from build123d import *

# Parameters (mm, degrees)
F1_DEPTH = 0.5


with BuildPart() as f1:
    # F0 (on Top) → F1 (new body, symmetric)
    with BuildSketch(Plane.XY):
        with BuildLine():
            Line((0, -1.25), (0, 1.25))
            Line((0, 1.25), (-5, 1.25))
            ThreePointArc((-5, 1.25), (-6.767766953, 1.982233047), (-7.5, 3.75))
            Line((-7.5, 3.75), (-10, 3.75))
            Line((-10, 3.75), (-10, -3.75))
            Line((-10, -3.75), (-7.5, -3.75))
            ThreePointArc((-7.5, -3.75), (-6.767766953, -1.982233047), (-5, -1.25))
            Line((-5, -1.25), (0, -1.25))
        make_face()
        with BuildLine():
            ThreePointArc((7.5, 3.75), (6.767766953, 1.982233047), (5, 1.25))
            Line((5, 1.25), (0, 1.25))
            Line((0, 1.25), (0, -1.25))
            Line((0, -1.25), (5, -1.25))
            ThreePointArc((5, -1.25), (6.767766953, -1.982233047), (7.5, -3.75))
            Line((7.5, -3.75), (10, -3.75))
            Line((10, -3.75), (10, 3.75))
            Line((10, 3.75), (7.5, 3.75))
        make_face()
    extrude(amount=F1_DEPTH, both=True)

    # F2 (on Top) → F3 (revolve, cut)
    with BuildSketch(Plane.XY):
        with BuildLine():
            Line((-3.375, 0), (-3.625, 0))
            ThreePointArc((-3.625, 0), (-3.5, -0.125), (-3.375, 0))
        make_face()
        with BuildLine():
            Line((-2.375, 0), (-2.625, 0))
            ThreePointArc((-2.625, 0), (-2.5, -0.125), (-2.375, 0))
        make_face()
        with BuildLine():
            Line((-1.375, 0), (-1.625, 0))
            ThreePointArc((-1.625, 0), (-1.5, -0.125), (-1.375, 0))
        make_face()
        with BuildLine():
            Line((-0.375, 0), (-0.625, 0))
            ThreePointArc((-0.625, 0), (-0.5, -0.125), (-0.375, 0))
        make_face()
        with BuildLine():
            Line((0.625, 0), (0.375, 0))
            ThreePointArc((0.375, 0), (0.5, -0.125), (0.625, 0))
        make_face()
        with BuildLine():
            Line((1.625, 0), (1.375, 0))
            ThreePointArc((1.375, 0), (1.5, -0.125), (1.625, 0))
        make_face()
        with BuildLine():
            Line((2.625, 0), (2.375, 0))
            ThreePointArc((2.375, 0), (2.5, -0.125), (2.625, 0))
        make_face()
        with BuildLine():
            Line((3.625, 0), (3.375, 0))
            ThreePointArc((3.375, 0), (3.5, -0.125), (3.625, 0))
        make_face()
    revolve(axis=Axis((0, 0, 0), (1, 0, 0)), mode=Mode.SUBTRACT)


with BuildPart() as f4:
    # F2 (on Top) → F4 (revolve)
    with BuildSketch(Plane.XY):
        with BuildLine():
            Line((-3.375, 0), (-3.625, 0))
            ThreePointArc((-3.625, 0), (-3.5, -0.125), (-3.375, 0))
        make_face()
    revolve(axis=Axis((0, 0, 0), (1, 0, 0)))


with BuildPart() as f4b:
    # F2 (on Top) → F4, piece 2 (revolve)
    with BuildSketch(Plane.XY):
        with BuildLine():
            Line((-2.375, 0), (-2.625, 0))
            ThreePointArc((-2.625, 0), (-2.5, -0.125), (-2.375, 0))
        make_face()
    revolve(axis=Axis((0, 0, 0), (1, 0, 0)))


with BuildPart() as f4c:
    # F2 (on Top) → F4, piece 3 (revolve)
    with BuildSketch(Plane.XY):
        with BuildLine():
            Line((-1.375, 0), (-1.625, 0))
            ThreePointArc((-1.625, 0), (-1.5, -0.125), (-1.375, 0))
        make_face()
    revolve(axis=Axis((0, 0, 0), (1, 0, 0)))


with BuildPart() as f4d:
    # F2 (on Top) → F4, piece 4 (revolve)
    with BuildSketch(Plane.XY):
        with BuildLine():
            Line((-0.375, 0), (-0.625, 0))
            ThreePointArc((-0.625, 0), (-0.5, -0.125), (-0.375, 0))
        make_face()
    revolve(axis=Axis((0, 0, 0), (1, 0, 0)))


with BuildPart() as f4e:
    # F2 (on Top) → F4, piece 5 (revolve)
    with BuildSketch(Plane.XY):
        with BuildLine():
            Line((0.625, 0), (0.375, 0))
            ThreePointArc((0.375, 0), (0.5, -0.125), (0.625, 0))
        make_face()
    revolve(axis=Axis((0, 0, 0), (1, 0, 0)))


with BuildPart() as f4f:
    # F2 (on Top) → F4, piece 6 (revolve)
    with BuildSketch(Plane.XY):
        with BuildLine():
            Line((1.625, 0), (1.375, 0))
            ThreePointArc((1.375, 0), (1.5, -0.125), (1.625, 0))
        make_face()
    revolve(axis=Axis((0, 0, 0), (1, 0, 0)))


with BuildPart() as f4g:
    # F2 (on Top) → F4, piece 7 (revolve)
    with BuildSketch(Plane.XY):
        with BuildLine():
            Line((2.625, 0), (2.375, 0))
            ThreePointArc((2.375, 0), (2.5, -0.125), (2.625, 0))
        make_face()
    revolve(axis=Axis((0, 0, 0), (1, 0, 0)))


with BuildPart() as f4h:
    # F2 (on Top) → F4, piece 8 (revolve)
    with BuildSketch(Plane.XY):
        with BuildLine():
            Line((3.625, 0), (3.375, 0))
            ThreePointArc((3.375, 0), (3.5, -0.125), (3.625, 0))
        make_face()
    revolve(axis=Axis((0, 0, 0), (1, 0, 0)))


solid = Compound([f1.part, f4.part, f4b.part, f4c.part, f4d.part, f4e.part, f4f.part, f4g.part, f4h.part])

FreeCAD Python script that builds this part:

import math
import FreeCAD as App
import Part
import Sketcher

doc = App.newDocument("Part")
params = doc.addObject("Spreadsheet::Sheet", "Params")
for row, (alias, value) in enumerate([
    ("sketch1_radius", "2.5 mm"),
    ("sketch1_width", "10 mm"),
    ("sketch1_width2", "2.5 mm"),
    ("sketch1_height", "7.5 mm"),
    ("pad1_length", "1 mm"),
    ("groove_angle", "360 deg"),
    ("revolution_angle", "360 deg"),
    ("revolution2_angle", "360 deg"),
    ("revolution3_angle", "360 deg"),
    ("revolution4_angle", "360 deg"),
    ("revolution5_angle", "360 deg"),
    ("revolution6_angle", "360 deg"),
    ("revolution7_angle", "360 deg"),
    ("revolution8_angle", "360 deg"),
], start=1):
    params.set(f"A{row}", alias)
    params.set(f"B{row}", "=" + value)
    params.setAlias(f"B{row}", alias)

body = doc.addObject("PartDesign::Body", "Body")

sketch1 = body.newObject("Sketcher::SketchObject", "Sketch")
sketch1.AttachmentSupport = (doc.getObject("XY_Plane"), [""])
sketch1.MapMode = "FlatFace"
sketch1.addGeometry([
    Part.ArcOfCircle(Part.Circle(App.Vector(-5, 3.75, 0), App.Vector(0, 0, 1), 2.5), math.radians(180), math.radians(270)),
    Part.LineSegment(App.Vector(-7.5, 3.75, 0), App.Vector(-10, 3.75, 0)),
    Part.LineSegment(App.Vector(-10, 3.75, 0), App.Vector(-10, -3.75, 0)),
    Part.LineSegment(App.Vector(-10, -3.75, 0), App.Vector(-7.5, -3.75, 0)),
    Part.ArcOfCircle(Part.Circle(App.Vector(-5, -3.75, 0), App.Vector(0, 0, 1), 2.5), math.radians(90), math.radians(180)),
    Part.LineSegment(App.Vector(-5, -1.25, 0), App.Vector(5, -1.25, 0)),
    Part.ArcOfCircle(Part.Circle(App.Vector(5, -3.75, 0), App.Vector(0, 0, 1), 2.5), math.radians(0), math.radians(90)),
    Part.LineSegment(App.Vector(7.5, -3.75, 0), App.Vector(10, -3.75, 0)),
    Part.LineSegment(App.Vector(10, -3.75, 0), App.Vector(10, 3.75, 0)),
    Part.LineSegment(App.Vector(10, 3.75, 0), App.Vector(7.5, 3.75, 0)),
    Part.ArcOfCircle(Part.Circle(App.Vector(5, 3.75, 0), App.Vector(0, 0, 1), 2.5), math.radians(-90), math.radians(0)),
    Part.LineSegment(App.Vector(5, 1.25, 0), App.Vector(-5, 1.25, 0)),
], False)
sketch1.addConstraint([
    Sketcher.Constraint("Coincident", 0, 1, 1, 1),
    Sketcher.Constraint("Coincident", 1, 2, 2, 1),
    Sketcher.Constraint("Coincident", 2, 2, 3, 1),
    Sketcher.Constraint("Coincident", 3, 2, 4, 2),
    Sketcher.Constraint("Tangent", 4, 1, 5, 1),
    Sketcher.Constraint("Tangent", 5, 2, 6, 2),
    Sketcher.Constraint("Coincident", 6, 1, 7, 1),
    Sketcher.Constraint("Coincident", 7, 2, 8, 1),
    Sketcher.Constraint("Coincident", 8, 2, 9, 1),
    Sketcher.Constraint("Coincident", 9, 2, 10, 2),
    Sketcher.Constraint("Tangent", 10, 1, 11, 1),
    Sketcher.Constraint("Tangent", 11, 2, 0, 2),
    Sketcher.Constraint("Horizontal", 1),
    Sketcher.Constraint("Vertical", 2),
    Sketcher.Constraint("Horizontal", 3),
    Sketcher.Constraint("Horizontal", 5),
    Sketcher.Constraint("Horizontal", 7),
    Sketcher.Constraint("Vertical", 8),
    Sketcher.Constraint("Horizontal", 9),
    Sketcher.Constraint("Horizontal", 11),
    Sketcher.Constraint("Equal", 0, 4),
    Sketcher.Constraint("Equal", 4, 6),
    Sketcher.Constraint("Equal", 6, 10),
    Sketcher.Constraint("Symmetric", 0, 3, 6, 3, -1, 1),
    Sketcher.Constraint("Symmetric", 1, 2, 7, 2, -1, 1),
    Sketcher.Constraint("Symmetric", 3, 2, 9, 2, -1, 1),
    Sketcher.Constraint("Symmetric", 3, 2, 6, 1, -2),
    Sketcher.Constraint("Horizontal", 10, 3, 0, 1),
    Sketcher.Constraint("Radius", 0, 2.5),
    Sketcher.Constraint("DistanceX", 5, 1, 5, 2, 10.0),
    Sketcher.Constraint("DistanceX", 1, 2, 1, 1, 2.5),
    Sketcher.Constraint("DistanceY", 2, 2, 2, 1, 7.5),
])
sketch1.setExpression("Constraints[28]", "Params.sketch1_radius")
sketch1.setExpression("Constraints[29]", "Params.sketch1_width")
sketch1.setExpression("Constraints[30]", "Params.sketch1_width2")
sketch1.setExpression("Constraints[31]", "Params.sketch1_height")
pad1 = body.newObject("PartDesign::Pad", "Pad")
pad1.Profile = sketch1
pad1.setExpression("Length", "Params.pad1_length")
pad1.Midplane = True

sketch2 = body.newObject("Sketcher::SketchObject", "Sketch001")
sketch2.AttachmentSupport = (doc.getObject("XY_Plane"), [""])
sketch2.MapMode = "FlatFace"
sketch2.addGeometry([
    Part.LineSegment(App.Vector(-3.375, 0, 0), App.Vector(-3.625, 0, 0)),
    Part.ArcOfCircle(Part.Circle(App.Vector(-3.5, 0, 0), App.Vector(0, 0, 1), 0.125), math.radians(180), math.radians(360)),
    Part.LineSegment(App.Vector(-2.375, 0, 0), App.Vector(-2.625, 0, 0)),
    Part.ArcOfCircle(Part.Circle(App.Vector(-2.5, 0, 0), App.Vector(0, 0, 1), 0.125), math.radians(180), math.radians(360)),
    Part.LineSegment(App.Vector(-1.375, 0, 0), App.Vector(-1.625, 0, 0)),
    Part.ArcOfCircle(Part.Circle(App.Vector(-1.5, 0, 0), App.Vector(0, 0, 1), 0.125), math.radians(180), math.radians(360)),
    Part.LineSegment(App.Vector(-0.375, 0, 0), App.Vector(-0.625, 0, 0)),
    Part.ArcOfCircle(Part.Circle(App.Vector(-0.5, 0, 0), App.Vector(0, 0, 1), 0.125), math.radians(180), math.radians(360)),
    Part.LineSegment(App.Vector(0.625, 0, 0), App.Vector(0.375, 0, 0)),
    Part.ArcOfCircle(Part.Circle(App.Vector(0.5, 0, 0), App.Vector(0, 0, 1), 0.125), math.radians(180), math.radians(360)),
    Part.LineSegment(App.Vector(1.625, 0, 0), App.Vector(1.375, 0, 0)),
    Part.ArcOfCircle(Part.Circle(App.Vector(1.5, 0, 0), App.Vector(0, 0, 1), 0.125), math.radians(180), math.radians(360)),
    Part.LineSegment(App.Vector(2.625, 0, 0), App.Vector(2.375, 0, 0)),
    Part.ArcOfCircle(Part.Circle(App.Vector(2.5, 0, 0), App.Vector(0, 0, 1), 0.125), math.radians(180), math.radians(360)),
    Part.LineSegment(App.Vector(3.625, 0, 0), App.Vector(3.375, 0, 0)),
    Part.ArcOfCircle(Part.Circle(App.Vector(3.5, 0, 0), App.Vector(0, 0, 1), 0.125), math.radians(180), math.radians(360)),
], False)
sketch2.addConstraint([
    Sketcher.Constraint("Coincident", 0, 1, 1, 2),
    Sketcher.Constraint("Coincident", 1, 1, 0, 2),
    Sketcher.Constraint("Coincident", 2, 1, 3, 2),
    Sketcher.Constraint("Coincident", 3, 1, 2, 2),
    Sketcher.Constraint("Coincident", 4, 1, 5, 2),
    Sketcher.Constraint("Coincident", 5, 1, 4, 2),
    Sketcher.Constraint("Coincident", 6, 1, 7, 2),
    Sketcher.Constraint("Coincident", 7, 1, 6, 2),
    Sketcher.Constraint("Coincident", 8, 1, 9, 2),
    Sketcher.Constraint("Coincident", 9, 1, 8, 2),
    Sketcher.Constraint("Coincident", 10, 1, 11, 2),
    Sketcher.Constraint("Coincident", 11, 1, 10, 2),
    Sketcher.Constraint("Coincident", 12, 1, 13, 2),
    Sketcher.Constraint("Coincident", 13, 1, 12, 2),
    Sketcher.Constraint("Coincident", 14, 1, 15, 2),
    Sketcher.Constraint("Coincident", 15, 1, 14, 2),
    Sketcher.Constraint("Horizontal", 0),
    Sketcher.Constraint("Horizontal", 2),
    Sketcher.Constraint("Horizontal", 4),
    Sketcher.Constraint("Horizontal", 6),
    Sketcher.Constraint("Horizontal", 8),
    Sketcher.Constraint("Horizontal", 10),
    Sketcher.Constraint("Horizontal", 12),
    Sketcher.Constraint("Horizontal", 14),
    Sketcher.Constraint("Equal", 1, 3),
    Sketcher.Constraint("Equal", 3, 5),
    Sketcher.Constraint("Equal", 5, 7),
    Sketcher.Constraint("Equal", 7, 9),
    Sketcher.Constraint("Equal", 9, 11),
    Sketcher.Constraint("Equal", 11, 13),
    Sketcher.Constraint("Equal", 13, 15),
    Sketcher.Constraint("Symmetric", 7, 3, 9, 3, -1, 1),
    Sketcher.Constraint("Symmetric", 5, 3, 11, 3, -1, 1),
    Sketcher.Constraint("Symmetric", 3, 3, 13, 3, -1, 1),
    Sketcher.Constraint("Symmetric", 1, 3, 15, 3, -1, 1),
    Sketcher.Constraint("PointOnObject", 1, 3, -1),
    Sketcher.Constraint("PointOnObject", 3, 3, -1),
    Sketcher.Constraint("PointOnObject", 5, 3, -1),
    Sketcher.Constraint("PointOnObject", 7, 3, -1),
    Sketcher.Constraint("PointOnObject", 0, 1, -1),
    Sketcher.Constraint("PointOnObject", 2, 1, -1),
    Sketcher.Constraint("PointOnObject", 4, 1, -1),
    Sketcher.Constraint("PointOnObject", 6, 1, -1),
    Sketcher.Constraint("PointOnObject", 8, 1, -1),
    Sketcher.Constraint("PointOnObject", 10, 1, -1),
    Sketcher.Constraint("PointOnObject", 12, 1, -1),
    Sketcher.Constraint("PointOnObject", 14, 1, -1),
    Sketcher.Constraint("Radius", 1, 0.125),
    Sketcher.Constraint("DistanceX", 1, 3, 3, 3, 1.0),
    Sketcher.Constraint("DistanceX", 3, 3, 5, 3, 1.0),
    Sketcher.Constraint("DistanceX", 5, 3, 7, 3, 1.0),
    Sketcher.Constraint("DistanceX", 7, 3, 9, 3, 1.0),
])
groove = body.newObject("PartDesign::Groove", "Groove")
groove.Profile = sketch2
groove.ReferenceAxis = (sketch2, ["H_Axis"])
groove.setExpression("Angle", "Params.groove_angle")
body2 = doc.addObject("PartDesign::Body", "Body001")

sketch3 = body2.newObject("Sketcher::SketchObject", "Sketch002")
sketch3.AttachmentSupport = (doc.getObject("XY_Plane001"), [""])
sketch3.MapMode = "FlatFace"
sketch3.addGeometry([
    Part.LineSegment(App.Vector(-3.375, 0, 0), App.Vector(-3.625, 0, 0)),
    Part.ArcOfCircle(Part.Circle(App.Vector(-3.5, 0, 0), App.Vector(0, 0, 1), 0.125), math.radians(180), math.radians(360)),
], False)
sketch3.addConstraint([
    Sketcher.Constraint("Coincident", 0, 1, 1, 2),
    Sketcher.Constraint("Coincident", 1, 1, 0, 2),
    Sketcher.Constraint("Horizontal", 0),
    Sketcher.Constraint("PointOnObject", 1, 3, -1),
    Sketcher.Constraint("PointOnObject", 0, 1, -1),
    Sketcher.Constraint("Radius", 1, 0.125),
    Sketcher.Constraint("DistanceX", 1, 3, -1, 1, 3.5),
])
revolution = body2.newObject("PartDesign::Revolution", "Revolution")
revolution.Profile = sketch3
revolution.ReferenceAxis = (sketch3, ["H_Axis"])
revolution.setExpression("Angle", "Params.revolution_angle")
body3 = doc.addObject("PartDesign::Body", "Body002")

sketch4 = body3.newObject("Sketcher::SketchObject", "Sketch003")
sketch4.AttachmentSupport = (doc.getObject("XY_Plane002"), [""])
sketch4.MapMode = "FlatFace"
sketch4.addGeometry([
    Part.LineSegment(App.Vector(-2.375, 0, 0), App.Vector(-2.625, 0, 0)),
    Part.ArcOfCircle(Part.Circle(App.Vector(-2.5, 0, 0), App.Vector(0, 0, 1), 0.125), math.radians(180), math.radians(360)),
], False)
sketch4.addConstraint([
    Sketcher.Constraint("Coincident", 0, 1, 1, 2),
    Sketcher.Constraint("Coincident", 1, 1, 0, 2),
    Sketcher.Constraint("Horizontal", 0),
    Sketcher.Constraint("PointOnObject", 1, 3, -1),
    Sketcher.Constraint("PointOnObject", 0, 1, -1),
    Sketcher.Constraint("Radius", 1, 0.125),
    Sketcher.Constraint("DistanceX", 1, 3, -1, 1, 2.5),
])
revolution2 = body3.newObject("PartDesign::Revolution", "Revolution001")
revolution2.Profile = sketch4
revolution2.ReferenceAxis = (sketch4, ["H_Axis"])
revolution2.setExpression("Angle", "Params.revolution2_angle")
body4 = doc.addObject("PartDesign::Body", "Body003")

sketch5 = body4.newObject("Sketcher::SketchObject", "Sketch004")
sketch5.AttachmentSupport = (doc.getObject("XY_Plane003"), [""])
sketch5.MapMode = "FlatFace"
sketch5.addGeometry([
    Part.LineSegment(App.Vector(-1.375, 0, 0), App.Vector(-1.625, 0, 0)),
    Part.ArcOfCircle(Part.Circle(App.Vector(-1.5, 0, 0), App.Vector(0, 0, 1), 0.125), math.radians(180), math.radians(360)),
], False)
sketch5.addConstraint([
    Sketcher.Constraint("Coincident", 0, 1, 1, 2),
    Sketcher.Constraint("Coincident", 1, 1, 0, 2),
    Sketcher.Constraint("Horizontal", 0),
    Sketcher.Constraint("PointOnObject", 1, 3, -1),
    Sketcher.Constraint("PointOnObject", 0, 1, -1),
    Sketcher.Constraint("Radius", 1, 0.125),
    Sketcher.Constraint("DistanceX", 1, 3, -1, 1, 1.5),
])
revolution3 = body4.newObject("PartDesign::Revolution", "Revolution002")
revolution3.Profile = sketch5
revolution3.ReferenceAxis = (sketch5, ["H_Axis"])
revolution3.setExpression("Angle", "Params.revolution3_angle")
body5 = doc.addObject("PartDesign::Body", "Body004")

sketch6 = body5.newObject("Sketcher::SketchObject", "Sketch005")
sketch6.AttachmentSupport = (doc.getObject("XY_Plane004"), [""])
sketch6.MapMode = "FlatFace"
sketch6.addGeometry([
    Part.LineSegment(App.Vector(-0.375, 0, 0), App.Vector(-0.625, 0, 0)),
    Part.ArcOfCircle(Part.Circle(App.Vector(-0.5, 0, 0), App.Vector(0, 0, 1), 0.125), math.radians(180), math.radians(360)),
], False)
sketch6.addConstraint([
    Sketcher.Constraint("Coincident", 0, 1, 1, 2),
    Sketcher.Constraint("Coincident", 1, 1, 0, 2),
    Sketcher.Constraint("Horizontal", 0),
    Sketcher.Constraint("PointOnObject", 1, 3, -1),
    Sketcher.Constraint("PointOnObject", 0, 1, -1),
    Sketcher.Constraint("Radius", 1, 0.125),
    Sketcher.Constraint("DistanceX", 1, 3, -1, 1, 0.5),
])
revolution4 = body5.newObject("PartDesign::Revolution", "Revolution003")
revolution4.Profile = sketch6
revolution4.ReferenceAxis = (sketch6, ["H_Axis"])
revolution4.setExpression("Angle", "Params.revolution4_angle")
body6 = doc.addObject("PartDesign::Body", "Body005")

sketch7 = body6.newObject("Sketcher::SketchObject", "Sketch006")
sketch7.AttachmentSupport = (doc.getObject("XY_Plane005"), [""])
sketch7.MapMode = "FlatFace"
sketch7.addGeometry([
    Part.LineSegment(App.Vector(0.625, 0, 0), App.Vector(0.375, 0, 0)),
    Part.ArcOfCircle(Part.Circle(App.Vector(0.5, 0, 0), App.Vector(0, 0, 1), 0.125), math.radians(180), math.radians(360)),
], False)
sketch7.addConstraint([
    Sketcher.Constraint("Coincident", 0, 1, 1, 2),
    Sketcher.Constraint("Coincident", 1, 1, 0, 2),
    Sketcher.Constraint("Horizontal", 0),
    Sketcher.Constraint("PointOnObject", 1, 3, -1),
    Sketcher.Constraint("PointOnObject", 0, 1, -1),
    Sketcher.Constraint("Radius", 1, 0.125),
    Sketcher.Constraint("DistanceX", -1, 1, 1, 3, 0.5),
])
revolution5 = body6.newObject("PartDesign::Revolution", "Revolution004")
revolution5.Profile = sketch7
revolution5.ReferenceAxis = (sketch7, ["H_Axis"])
revolution5.setExpression("Angle", "Params.revolution5_angle")
body7 = doc.addObject("PartDesign::Body", "Body006")

sketch8 = body7.newObject("Sketcher::SketchObject", "Sketch007")
sketch8.AttachmentSupport = (doc.getObject("XY_Plane006"), [""])
sketch8.MapMode = "FlatFace"
sketch8.addGeometry([
    Part.LineSegment(App.Vector(1.625, 0, 0), App.Vector(1.375, 0, 0)),
    Part.ArcOfCircle(Part.Circle(App.Vector(1.5, 0, 0), App.Vector(0, 0, 1), 0.125), math.radians(180), math.radians(360)),
], False)
sketch8.addConstraint([
    Sketcher.Constraint("Coincident", 0, 1, 1, 2),
    Sketcher.Constraint("Coincident", 1, 1, 0, 2),
    Sketcher.Constraint("Horizontal", 0),
    Sketcher.Constraint("PointOnObject", 1, 3, -1),
    Sketcher.Constraint("PointOnObject", 0, 1, -1),
    Sketcher.Constraint("Radius", 1, 0.125),
    Sketcher.Constraint("DistanceX", -1, 1, 1, 3, 1.5),
])
revolution6 = body7.newObject("PartDesign::Revolution", "Revolution005")
revolution6.Profile = sketch8
revolution6.ReferenceAxis = (sketch8, ["H_Axis"])
revolution6.setExpression("Angle", "Params.revolution6_angle")
body8 = doc.addObject("PartDesign::Body", "Body007")

sketch9 = body8.newObject("Sketcher::SketchObject", "Sketch008")
sketch9.AttachmentSupport = (doc.getObject("XY_Plane007"), [""])
sketch9.MapMode = "FlatFace"
sketch9.addGeometry([
    Part.LineSegment(App.Vector(2.625, 0, 0), App.Vector(2.375, 0, 0)),
    Part.ArcOfCircle(Part.Circle(App.Vector(2.5, 0, 0), App.Vector(0, 0, 1), 0.125), math.radians(180), math.radians(360)),
], False)
sketch9.addConstraint([
    Sketcher.Constraint("Coincident", 0, 1, 1, 2),
    Sketcher.Constraint("Coincident", 1, 1, 0, 2),
    Sketcher.Constraint("Horizontal", 0),
    Sketcher.Constraint("PointOnObject", 1, 3, -1),
    Sketcher.Constraint("PointOnObject", 0, 1, -1),
    Sketcher.Constraint("Radius", 1, 0.125),
    Sketcher.Constraint("DistanceX", -1, 1, 1, 3, 2.5),
])
revolution7 = body8.newObject("PartDesign::Revolution", "Revolution006")
revolution7.Profile = sketch9
revolution7.ReferenceAxis = (sketch9, ["H_Axis"])
revolution7.setExpression("Angle", "Params.revolution7_angle")
body9 = doc.addObject("PartDesign::Body", "Body008")

sketch10 = body9.newObject("Sketcher::SketchObject", "Sketch009")
sketch10.AttachmentSupport = (doc.getObject("XY_Plane008"), [""])
sketch10.MapMode = "FlatFace"
sketch10.addGeometry([
    Part.LineSegment(App.Vector(3.625, 0, 0), App.Vector(3.375, 0, 0)),
    Part.ArcOfCircle(Part.Circle(App.Vector(3.5, 0, 0), App.Vector(0, 0, 1), 0.125), math.radians(180), math.radians(360)),
], False)
sketch10.addConstraint([
    Sketcher.Constraint("Coincident", 0, 1, 1, 2),
    Sketcher.Constraint("Coincident", 1, 1, 0, 2),
    Sketcher.Constraint("Horizontal", 0),
    Sketcher.Constraint("PointOnObject", 1, 3, -1),
    Sketcher.Constraint("PointOnObject", 0, 1, -1),
    Sketcher.Constraint("Radius", 1, 0.125),
    Sketcher.Constraint("DistanceX", -1, 1, 1, 3, 3.5),
])
revolution8 = body9.newObject("PartDesign::Revolution", "Revolution007")
revolution8.Profile = sketch10
revolution8.ReferenceAxis = (sketch10, ["H_Axis"])
revolution8.setExpression("Angle", "Params.revolution8_angle")

doc.recompute()
